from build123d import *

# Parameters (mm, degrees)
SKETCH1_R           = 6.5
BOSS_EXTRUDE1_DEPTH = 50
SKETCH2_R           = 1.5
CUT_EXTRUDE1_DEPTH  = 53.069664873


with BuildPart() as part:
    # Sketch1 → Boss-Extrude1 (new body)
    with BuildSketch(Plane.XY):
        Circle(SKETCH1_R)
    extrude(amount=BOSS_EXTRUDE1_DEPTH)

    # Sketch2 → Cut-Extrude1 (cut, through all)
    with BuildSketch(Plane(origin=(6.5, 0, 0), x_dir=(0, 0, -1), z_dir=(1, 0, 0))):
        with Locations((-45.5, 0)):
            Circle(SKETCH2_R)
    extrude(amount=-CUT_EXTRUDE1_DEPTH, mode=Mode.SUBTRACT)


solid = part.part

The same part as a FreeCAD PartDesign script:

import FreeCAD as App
import Part
import Sketcher

V = App.Vector
Q = App.Units.Quantity

doc = App.newDocument("Part")
body = doc.addObject("PartDesign::Body", "Body")

sketch1 = body.newObject("Sketcher::SketchObject", "Sketch")
sketch1.AttachmentSupport = (doc.getObject("XY_Plane"), [""])
sketch1.MapMode = "FlatFace"
sketch1.addGeometry(Part.Circle(V(0, 0, 0), V(0, 0, 1), 6), False)
sketch1.addConstraint([
    Sketcher.Constraint("Coincident", 0, 3, -1, 1),
    Sketcher.Constraint("Diameter", 0, Q("13 mm")),
])
pad1 = body.newObject("PartDesign::Pad", "Pad")
pad1.Profile = sketch1
pad1.Length = 50

sketch2 = body.newObject("Sketcher::SketchObject", "Sketch001")
sketch2.AttachmentSupport = (doc.getObject("YZ_Plane"), [""])
sketch2.MapMode = "FlatFace"
sketch2.AttachmentOffset = App.Placement(V(0, 0, 6.5), App.Rotation())
sketch2.addGeometry(Part.Circle(V(0, 45.5, 0), V(0, 0, 1), 1.5), False)
sketch2.addConstraint([
    Sketcher.Constraint("PointOnObject", 0, 3, -2),
    Sketcher.Constraint("Diameter", 0, Q("3 mm")),
    Sketcher.Constraint("DistanceY", -1, 1, 0, 3, Q("45.5 mm")),
])
pocket1 = body.newObject("PartDesign::Pocket", "Pocket")
pocket1.Profile = sketch2
pocket1.Type = "ThroughAll"

doc.recompute()
